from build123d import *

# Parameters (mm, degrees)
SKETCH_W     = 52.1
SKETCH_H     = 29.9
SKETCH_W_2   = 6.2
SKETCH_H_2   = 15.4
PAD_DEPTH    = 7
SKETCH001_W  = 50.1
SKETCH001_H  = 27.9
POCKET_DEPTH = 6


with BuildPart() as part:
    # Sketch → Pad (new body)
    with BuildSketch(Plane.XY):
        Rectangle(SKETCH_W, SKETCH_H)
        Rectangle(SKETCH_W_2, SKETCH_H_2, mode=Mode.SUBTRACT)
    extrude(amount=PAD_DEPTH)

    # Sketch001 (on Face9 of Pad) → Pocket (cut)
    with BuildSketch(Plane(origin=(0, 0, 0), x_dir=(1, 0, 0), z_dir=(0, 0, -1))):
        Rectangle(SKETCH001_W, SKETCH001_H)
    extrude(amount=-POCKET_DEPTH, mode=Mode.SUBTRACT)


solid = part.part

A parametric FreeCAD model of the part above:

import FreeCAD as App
import Part
import Sketcher
from FreeCAD import Vector

doc = App.newDocument("Part")
body = doc.addObject("PartDesign::Body", "Body")

sketch1 = doc.addObject("Sketcher::SketchObject", "Sketch")
body.addObject(sketch1)
sketch1.AttachmentSupport = (doc.XY_Plane, [""])
sketch1.MapMode = "FlatFace"
sketch1.addGeometry(Part.LineSegment(Vector(-26, 15, 0), Vector(-26, -15, 0)), False)
sketch1.addGeometry(Part.LineSegment(Vector(-26, -15, 0), Vector(26, -15, 0)), False)
sketch1.addGeometry(Part.LineSegment(Vector(26, -15, 0), Vector(26, 15, 0)), False)
sketch1.addGeometry(Part.LineSegment(Vector(26, 15, 0), Vector(-26, 15, 0)), False)
sketch1.addGeometry(Part.LineSegment(Vector(3, -8, 0), Vector(-3, -8, 0)), False)
sketch1.addGeometry(Part.LineSegment(Vector(-3, -8, 0), Vector(-3, 8, 0)), False)
sketch1.addGeometry(Part.LineSegment(Vector(-3, 8, 0), Vector(3, 8, 0)), False)
sketch1.addGeometry(Part.LineSegment(Vector(3, 8, 0), Vector(3, -8, 0)), False)
sketch1.addConstraint(Sketcher.Constraint("Coincident", 0, 2, 1, 1))
sketch1.addConstraint(Sketcher.Constraint("Coincident", 1, 2, 2, 1))
sketch1.addConstraint(Sketcher.Constraint("Coincident", 2, 2, 3, 1))
sketch1.addConstraint(Sketcher.Constraint("Coincident", 3, 2, 0, 1))
sketch1.addConstraint(Sketcher.Constraint("Coincident", 4, 2, 5, 1))
sketch1.addConstraint(Sketcher.Constraint("Coincident", 5, 2, 6, 1))
sketch1.addConstraint(Sketcher.Constraint("Coincident", 6, 2, 7, 1))
sketch1.addConstraint(Sketcher.Constraint("Coincident", 7, 2, 4, 1))
sketch1.addConstraint(Sketcher.Constraint("Vertical", 0))
sketch1.addConstraint(Sketcher.Constraint("Horizontal", 1))
sketch1.addConstraint(Sketcher.Constraint("Vertical", 2))
sketch1.addConstraint(Sketcher.Constraint("Horizontal", 3))
sketch1.addConstraint(Sketcher.Constraint("Horizontal", 4))
sketch1.addConstraint(Sketcher.Constraint("Vertical", 5))
sketch1.addConstraint(Sketcher.Constraint("Horizontal", 6))
sketch1.addConstraint(Sketcher.Constraint("Vertical", 7))
sketch1.addConstraint(Sketcher.Constraint("Symmetric", 0, 2, 2, 2, -1, 1))
sketch1.addConstraint(Sketcher.Constraint("Symmetric", 4, 2, 6, 2, -1, 1))
sketch1.addConstraint(Sketcher.Constraint("DistanceX", 1, 1, 1, 2, 52.1))
sketch1.addConstraint(Sketcher.Constraint("DistanceX", 4, 2, 4, 1, 6.2))
sketch1.addConstraint(Sketcher.Constraint("DistanceY", 0, 2, 0, 1, 29.9))
sketch1.addConstraint(Sketcher.Constraint("DistanceY", 5, 1, 5, 2, 15.4))
pad1 = doc.addObject("PartDesign::Pad", "Pad")
body.addObject(pad1)
pad1.Profile = sketch1
pad1.Length = 7

sketch2 = doc.addObject("Sketcher::SketchObject", "Sketch001")
body.addObject(sketch2)
sketch2.AttachmentSupport = (doc.XY_Plane, [""])
sketch2.MapMode = "FlatFace"
sketch2.addGeometry(Part.LineSegment(Vector(-25, -14, 0), Vector(-25, 14, 0)), False)
sketch2.addGeometry(Part.LineSegment(Vector(-25, 14, 0), Vector(25, 14, 0)), False)
sketch2.addGeometry(Part.LineSegment(Vector(25, 14, 0), Vector(25, -14, 0)), False)
sketch2.addGeometry(Part.LineSegment(Vector(25, -14, 0), Vector(-25, -14, 0)), False)
sketch2.addConstraint(Sketcher.Constraint("Coincident", 0, 2, 1, 1))
sketch2.addConstraint(Sketcher.Constraint("Coincident", 1, 2, 2, 1))
sketch2.addConstraint(Sketcher.Constraint("Coincident", 2, 2, 3, 1))
sketch2.addConstraint(Sketcher.Constraint("Coincident", 3, 2, 0, 1))
sketch2.addConstraint(Sketcher.Constraint("Vertical", 0))
sketch2.addConstraint(Sketcher.Constraint("Horizontal", 1))
sketch2.addConstraint(Sketcher.Constraint("Vertical", 2))
sketch2.addConstraint(Sketcher.Constraint("Horizontal", 3))
sketch2.addConstraint(Sketcher.Constraint("Symmetric", 0, 2, 2, 2, -1, 1))
sketch2.addConstraint(Sketcher.Constraint("DistanceX", 1, 1, 1, 2, 50.1))
sketch2.addConstraint(Sketcher.Constraint("DistanceY", 0, 1, 0, 2, 27.9))
pocket1 = doc.addObject("PartDesign::Pocket", "Pocket")
body.addObject(pocket1)
pocket1.Profile = sketch2
pocket1.Length = 6
pocket1.Reversed = True

doc.recompute()
